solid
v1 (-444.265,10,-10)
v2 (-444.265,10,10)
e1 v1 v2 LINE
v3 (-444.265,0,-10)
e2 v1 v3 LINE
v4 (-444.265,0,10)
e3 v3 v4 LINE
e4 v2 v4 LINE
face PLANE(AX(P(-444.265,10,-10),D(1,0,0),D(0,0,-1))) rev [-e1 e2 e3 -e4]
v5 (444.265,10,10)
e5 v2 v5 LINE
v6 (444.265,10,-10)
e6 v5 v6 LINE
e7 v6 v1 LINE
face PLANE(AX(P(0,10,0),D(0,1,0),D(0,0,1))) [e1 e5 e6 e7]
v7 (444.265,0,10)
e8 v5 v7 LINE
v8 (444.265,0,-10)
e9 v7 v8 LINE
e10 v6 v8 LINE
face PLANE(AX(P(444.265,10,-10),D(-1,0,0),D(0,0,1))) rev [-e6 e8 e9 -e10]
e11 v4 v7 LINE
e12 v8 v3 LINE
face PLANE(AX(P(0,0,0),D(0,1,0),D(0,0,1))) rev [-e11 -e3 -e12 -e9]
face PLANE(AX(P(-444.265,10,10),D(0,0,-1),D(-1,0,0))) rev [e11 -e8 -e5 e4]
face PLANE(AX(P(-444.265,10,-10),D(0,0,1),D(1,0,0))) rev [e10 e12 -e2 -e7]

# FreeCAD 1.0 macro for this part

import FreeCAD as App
import Part
import Sketcher
from FreeCAD import Vector

doc = App.newDocument("Part")
body = doc.addObject("PartDesign::Body", "Body")

# Sketch on XZ plane
sketch1 = body.newObject("Sketcher::SketchObject", "Sketch")
sketch1.AttachmentSupport = (doc.getObject("XZ_Plane"), [""])
sketch1.MapMode = "FlatFace"
sketch1.addGeometry([
    Part.LineSegment(Vector(-444.265, -10, 0), Vector(-444.265, 10, 0)),
    Part.LineSegment(Vector(-444.265, 10, 0), Vector(444.265, 10, 0)),
    Part.LineSegment(Vector(444.265, 10, 0), Vector(444.265, -10, 0)),
    Part.LineSegment(Vector(444.265, -10, 0), Vector(-444.265, -10, 0)),
], False)
sketch1.addConstraint([
    Sketcher.Constraint("Coincident", 0, 2, 1, 1),
    Sketcher.Constraint("Coincident", 1, 2, 2, 1),
    Sketcher.Constraint("Coincident", 2, 2, 3, 1),
    Sketcher.Constraint("Coincident", 3, 2, 0, 1),
    Sketcher.Constraint("Vertical", 0),
    Sketcher.Constraint("Horizontal", 1),
    Sketcher.Constraint("Vertical", 2),
    Sketcher.Constraint("Horizontal", 3),
    Sketcher.Constraint("Symmetric", 0, 2, 2, 2, -1, 1),
    Sketcher.Constraint("DistanceY", 0, 1, 0, 2, 20.0),
    Sketcher.Constraint("DistanceX", 1, 1, 1, 2, 888.53),
])
pad1 = body.newObject("PartDesign::Pad", "Pad")
pad1.Profile = sketch1
pad1.Length = 10
pad1.Reversed = True

doc.recompute()
